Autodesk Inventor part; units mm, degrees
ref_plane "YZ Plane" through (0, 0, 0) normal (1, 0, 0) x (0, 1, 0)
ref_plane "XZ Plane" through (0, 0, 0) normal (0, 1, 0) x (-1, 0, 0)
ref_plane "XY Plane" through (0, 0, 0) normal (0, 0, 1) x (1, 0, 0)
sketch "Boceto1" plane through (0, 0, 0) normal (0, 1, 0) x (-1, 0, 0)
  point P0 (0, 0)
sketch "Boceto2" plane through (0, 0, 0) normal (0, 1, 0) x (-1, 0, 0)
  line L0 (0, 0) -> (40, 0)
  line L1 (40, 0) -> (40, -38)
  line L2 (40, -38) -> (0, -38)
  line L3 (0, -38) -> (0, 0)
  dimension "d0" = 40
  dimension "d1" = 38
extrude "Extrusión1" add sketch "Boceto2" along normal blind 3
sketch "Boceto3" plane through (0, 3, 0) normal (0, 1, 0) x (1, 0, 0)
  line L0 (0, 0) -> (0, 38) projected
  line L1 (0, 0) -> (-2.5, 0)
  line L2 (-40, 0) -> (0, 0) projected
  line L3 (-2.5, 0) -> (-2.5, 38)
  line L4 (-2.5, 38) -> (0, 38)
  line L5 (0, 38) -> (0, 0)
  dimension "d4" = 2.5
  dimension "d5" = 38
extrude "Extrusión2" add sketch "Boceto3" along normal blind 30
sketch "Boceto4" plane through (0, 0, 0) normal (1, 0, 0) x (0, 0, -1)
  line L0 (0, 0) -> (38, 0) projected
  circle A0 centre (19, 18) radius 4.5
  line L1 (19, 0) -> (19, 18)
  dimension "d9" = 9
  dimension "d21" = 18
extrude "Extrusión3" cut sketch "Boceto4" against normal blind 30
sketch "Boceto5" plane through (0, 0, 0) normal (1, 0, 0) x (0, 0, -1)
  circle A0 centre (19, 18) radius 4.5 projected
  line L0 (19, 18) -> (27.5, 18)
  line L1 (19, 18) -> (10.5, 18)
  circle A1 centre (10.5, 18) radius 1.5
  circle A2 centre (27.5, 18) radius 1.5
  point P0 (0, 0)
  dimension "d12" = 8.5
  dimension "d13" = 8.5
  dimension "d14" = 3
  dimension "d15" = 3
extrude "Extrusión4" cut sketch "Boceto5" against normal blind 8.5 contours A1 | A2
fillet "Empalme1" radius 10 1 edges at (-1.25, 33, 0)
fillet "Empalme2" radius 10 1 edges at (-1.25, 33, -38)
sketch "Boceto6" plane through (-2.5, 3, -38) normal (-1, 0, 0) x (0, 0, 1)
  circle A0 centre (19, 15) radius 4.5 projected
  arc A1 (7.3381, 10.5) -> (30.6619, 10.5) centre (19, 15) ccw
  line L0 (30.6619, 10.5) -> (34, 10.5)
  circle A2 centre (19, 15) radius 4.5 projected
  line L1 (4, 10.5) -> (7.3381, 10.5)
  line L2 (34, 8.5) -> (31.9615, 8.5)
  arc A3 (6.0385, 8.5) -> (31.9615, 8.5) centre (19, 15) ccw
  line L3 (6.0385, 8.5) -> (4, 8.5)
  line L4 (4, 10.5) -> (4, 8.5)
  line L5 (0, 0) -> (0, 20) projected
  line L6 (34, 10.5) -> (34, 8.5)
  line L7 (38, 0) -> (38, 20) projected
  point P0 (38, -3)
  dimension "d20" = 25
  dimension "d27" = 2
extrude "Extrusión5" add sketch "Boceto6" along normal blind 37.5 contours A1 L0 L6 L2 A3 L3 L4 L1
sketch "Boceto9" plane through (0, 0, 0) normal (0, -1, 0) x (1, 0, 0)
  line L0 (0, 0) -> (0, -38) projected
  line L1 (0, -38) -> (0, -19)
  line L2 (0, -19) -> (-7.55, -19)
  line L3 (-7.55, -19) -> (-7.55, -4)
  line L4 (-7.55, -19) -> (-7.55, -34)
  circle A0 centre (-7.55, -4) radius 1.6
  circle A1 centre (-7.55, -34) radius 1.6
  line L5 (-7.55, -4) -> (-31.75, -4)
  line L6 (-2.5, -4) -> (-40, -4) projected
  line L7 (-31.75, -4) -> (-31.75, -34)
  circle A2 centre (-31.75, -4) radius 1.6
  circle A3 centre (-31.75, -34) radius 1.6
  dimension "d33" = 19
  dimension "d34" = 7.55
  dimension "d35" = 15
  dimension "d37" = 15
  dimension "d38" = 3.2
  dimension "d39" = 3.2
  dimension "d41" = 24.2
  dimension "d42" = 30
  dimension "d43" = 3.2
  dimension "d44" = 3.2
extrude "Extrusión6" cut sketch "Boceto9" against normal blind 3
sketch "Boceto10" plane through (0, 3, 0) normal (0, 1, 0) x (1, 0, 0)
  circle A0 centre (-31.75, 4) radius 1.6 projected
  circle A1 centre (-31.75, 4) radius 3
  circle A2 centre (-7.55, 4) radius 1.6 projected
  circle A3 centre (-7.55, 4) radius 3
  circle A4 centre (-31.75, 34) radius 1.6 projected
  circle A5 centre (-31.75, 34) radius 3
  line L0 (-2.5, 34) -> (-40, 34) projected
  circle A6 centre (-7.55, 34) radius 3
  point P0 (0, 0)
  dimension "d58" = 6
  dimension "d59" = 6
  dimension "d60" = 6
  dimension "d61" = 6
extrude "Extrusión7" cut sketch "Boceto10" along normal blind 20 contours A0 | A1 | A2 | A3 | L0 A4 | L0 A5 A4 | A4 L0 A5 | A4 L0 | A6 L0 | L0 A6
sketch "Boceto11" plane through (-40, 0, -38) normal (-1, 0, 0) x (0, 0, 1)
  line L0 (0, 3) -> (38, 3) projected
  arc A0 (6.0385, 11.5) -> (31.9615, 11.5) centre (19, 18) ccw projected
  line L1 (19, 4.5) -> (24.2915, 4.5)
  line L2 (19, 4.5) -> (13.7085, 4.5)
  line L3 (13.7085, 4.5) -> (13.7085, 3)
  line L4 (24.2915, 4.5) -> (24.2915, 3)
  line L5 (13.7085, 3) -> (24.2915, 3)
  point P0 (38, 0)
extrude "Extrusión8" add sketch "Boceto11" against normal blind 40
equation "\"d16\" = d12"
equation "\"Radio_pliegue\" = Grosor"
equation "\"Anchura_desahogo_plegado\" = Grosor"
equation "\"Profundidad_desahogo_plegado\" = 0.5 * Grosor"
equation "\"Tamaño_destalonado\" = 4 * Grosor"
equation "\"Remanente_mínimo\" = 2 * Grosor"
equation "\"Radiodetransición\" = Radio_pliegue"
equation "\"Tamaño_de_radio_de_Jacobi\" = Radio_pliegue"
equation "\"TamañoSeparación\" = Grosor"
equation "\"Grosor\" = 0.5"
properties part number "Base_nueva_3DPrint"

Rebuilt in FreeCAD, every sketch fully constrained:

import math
import FreeCAD as App
import Part
import Sketcher
Q = App.Units.Quantity


def edges_at(feature, points):
    """Names of the edges that pass closest to the given points."""
    edges = feature.Shape.Edges
    near = lambda p: min(range(len(edges)), key=lambda i: edges[i].distToShape(Part.Vertex(*p))[0])
    return sorted({f"Edge{near(p) + 1}" for p in points})


def add_polygon(sketch, points):
    """Adds a closed chain of lines whose ends are joined by coincident constraints."""
    first, n = sketch.GeometryCount, len(points)
    for a, b in zip(points, points[1:] + points[:1]):
        sketch.addGeometry(Part.LineSegment(App.Vector(*a, 0), App.Vector(*b, 0)), False)
    for i in range(n):
        sketch.addConstraint(Sketcher.Constraint("Coincident", first + i, 2, first + (i + 1) % n, 1))

doc = App.newDocument("Part")
body = doc.addObject("PartDesign::Body", "Body")

# Sketch on XZ plane
sketch1 = doc.addObject("Sketcher::SketchObject", "Sketch")
body.addObject(sketch1)
sketch1.AttachmentSupport = (doc.XZ_Plane, [""])
sketch1.MapMode = "FlatFace"
add_polygon(sketch1, [(-40, 0), (0, 0), (0, -38), (-40, -38)])  # lines 0-3
sketch1.addConstraint([
    Sketcher.Constraint("Horizontal", 0),
    Sketcher.Constraint("Vertical", 1),
    Sketcher.Constraint("Horizontal", 2),
    Sketcher.Constraint("Vertical", 3),
    Sketcher.Constraint("Coincident", 0, 2, -1, 1),
    Sketcher.Constraint("DistanceX", 0, 1, 0, 2, Q("40 mm")),
    Sketcher.Constraint("DistanceY", 1, 2, 1, 1, Q("38 mm")),
])
pad1 = doc.addObject("PartDesign::Pad", "Pad")
body.addObject(pad1)
pad1.Profile = sketch1
pad1.Length = 3
pad1.Reversed = True

# Sketch on XZ plane
sketch2 = doc.addObject("Sketcher::SketchObject", "Sketch001")
body.addObject(sketch2)
sketch2.AttachmentSupport = (doc.XZ_Plane, [""])
sketch2.MapMode = "FlatFace"
sketch2.AttachmentOffset = App.Placement(App.Vector(0, 0, -3), App.Rotation())
add_polygon(sketch2, [(-2.5, 0), (0, 0), (0, -38), (-2.5, -38)])  # lines 0-3
sketch2.addConstraint([
    Sketcher.Constraint("Horizontal", 0),
    Sketcher.Constraint("Vertical", 1),
    Sketcher.Constraint("Horizontal", 2),
    Sketcher.Constraint("Vertical", 3),
    Sketcher.Constraint("Coincident", 0, 2, -1, 1),
    Sketcher.Constraint("DistanceY", 1, 2, 1, 1, Q("38 mm")),
    Sketcher.Constraint("DistanceX", 0, 1, 0, 2, Q("2.5 mm")),
])
pad2 = doc.addObject("PartDesign::Pad", "Pad001")
body.addObject(pad2)
pad2.Profile = sketch2
pad2.Length = 30
pad2.Reversed = True

# Sketch on YZ plane
sketch3 = doc.addObject("Sketcher::SketchObject", "Sketch002")
body.addObject(sketch3)
sketch3.AttachmentSupport = (doc.YZ_Plane, [""])
sketch3.MapMode = "FlatFace"
sketch3.addGeometry(Part.Circle(App.Vector(18, -19, 0), App.Vector(0, 0, 1), 4.5), False)
sketch3.addConstraint([
    Sketcher.Constraint("Diameter", 0, Q("9 mm")),
    Sketcher.Constraint("DistanceX", -1, 1, 0, 3, Q("18 mm")),
    Sketcher.Constraint("DistanceY", 0, 3, -1, 1, Q("19 mm")),
])
pocket1 = doc.addObject("PartDesign::Pocket", "Pocket")
body.addObject(pocket1)
pocket1.Profile = sketch3
pocket1.Length = 30

# Sketch on YZ plane
sketch4 = doc.addObject("Sketcher::SketchObject", "Sketch003")
body.addObject(sketch4)
sketch4.AttachmentSupport = (doc.YZ_Plane, [""])
sketch4.MapMode = "FlatFace"
sketch4.addGeometry([
    Part.Circle(App.Vector(18, -10.5, 0), App.Vector(0, 0, 1), 1.5),
    Part.Circle(App.Vector(18, -27.5, 0), App.Vector(0, 0, 1), 1.5),
], False)
sketch4.addConstraint([
    Sketcher.Constraint("Equal", 0, 1),
    Sketcher.Constraint("Vertical", 0, 3, 1, 3),
    Sketcher.Constraint("Diameter", 0, Q("3 mm")),
    Sketcher.Constraint("DistanceX", -1, 1, 0, 3, Q("18 mm")),
    Sketcher.Constraint("DistanceY", 1, 3, 0, 3, Q("17 mm")),
    Sketcher.Constraint("DistanceY", 0, 3, -1, 1, Q("10.5 mm")),
])
pocket2 = doc.addObject("PartDesign::Pocket", "Pocket001")
body.addObject(pocket2)
pocket2.Profile = sketch4
pocket2.Length = 8.5
doc.recompute()

fillet = doc.addObject("PartDesign::Fillet", "Fillet")
body.addObject(fillet)
fillet.Base = (pocket2, edges_at(pocket2, [(-1.25, 33, 0)]))
fillet.Radius = 10
doc.recompute()

fillet2 = doc.addObject("PartDesign::Fillet", "Fillet001")
body.addObject(fillet2)
fillet2.Base = (fillet, edges_at(fillet, [(-1.25, 33, -38)]))
fillet2.Radius = 10

# Sketch on YZ plane
sketch5 = doc.addObject("Sketcher::SketchObject", "Sketch004")
body.addObject(sketch5)
sketch5.AttachmentSupport = (doc.YZ_Plane, [""])
sketch5.MapMode = "FlatFace"
sketch5.AttachmentOffset = App.Placement(App.Vector(0, 0, -2.5), App.Rotation())
sketch5.addGeometry([
    Part.ArcOfCircle(Part.Circle(App.Vector(18, -19, 0), App.Vector(0, 0, 1), 12.499996), math.radians(111.100202), math.radians(248.899798)),  # 0
    Part.LineSegment(App.Vector(13.5, -30.6619, 0), App.Vector(13.5, -34, 0)),  # 1
    Part.LineSegment(App.Vector(13.5, -34, 0), App.Vector(11.5, -34, 0)),  # 2
    Part.LineSegment(App.Vector(11.5, -34, 0), App.Vector(11.5, -31.9615, 0)),  # 3
    Part.ArcOfCircle(Part.Circle(App.Vector(18, -19, 0), App.Vector(0, 0, 1), 14.500017), math.radians(116.633086), math.radians(243.366914)),  # 4
    Part.LineSegment(App.Vector(11.5, -6.0385, 0), App.Vector(11.5, -4, 0)),  # 5
    Part.LineSegment(App.Vector(11.5, -4, 0), App.Vector(13.5, -4, 0)),  # 6
    Part.LineSegment(App.Vector(13.5, -4, 0), App.Vector(13.5, -7.3381, 0)),  # 7
], False)
sketch5.addConstraint([
    Sketcher.Constraint("Coincident", 0, 2, 1, 1),
    Sketcher.Constraint("Coincident", 1, 2, 2, 1),
    Sketcher.Constraint("Coincident", 2, 2, 3, 1),
    Sketcher.Constraint("Coincident", 3, 2, 4, 2),
    Sketcher.Constraint("Coincident", 4, 1, 5, 1),
    Sketcher.Constraint("Coincident", 5, 2, 6, 1),
    Sketcher.Constraint("Coincident", 6, 2, 7, 1),
    Sketcher.Constraint("Coincident", 7, 2, 0, 1),
    Sketcher.Constraint("Vertical", 1),
    Sketcher.Constraint("Horizontal", 2),
    Sketcher.Constraint("Vertical", 3),
    Sketcher.Constraint("Vertical", 5),
    Sketcher.Constraint("Horizontal", 6),
    Sketcher.Constraint("Vertical", 7),
    Sketcher.Constraint("Coincident", 4, 3, 0, 3),
    Sketcher.Constraint("Vertical", 3, 2, 4, 1),
    Sketcher.Constraint("Vertical", 1, 2, 6, 2),
    Sketcher.Constraint("Equal", 3, 5),
    Sketcher.Constraint("Radius", 0, Q("12.5 mm")),
    Sketcher.Constraint("DistanceX", 2, 2, 2, 1, Q("2 mm")),
    Sketcher.Constraint("Radius", 4, Q("14.5 mm")),
    Sketcher.Constraint("DistanceX", -1, 1, 0, 3, Q("18 mm")),
    Sketcher.Constraint("DistanceY", 0, 3, -1, 1, Q("19 mm")),
    Sketcher.Constraint("DistanceY", 1, 2, -1, 1, Q("34 mm")),
    Sketcher.Constraint("DistanceX", -1, 1, 0, 2, Q("13.5 mm")),
])
pad3 = doc.addObject("PartDesign::Pad", "Pad002")
body.addObject(pad3)
pad3.Profile = sketch5
pad3.Length = 37.5
pad3.Reversed = True

# Sketch on XZ plane
sketch6 = doc.addObject("Sketcher::SketchObject", "Sketch005")
body.addObject(sketch6)
sketch6.AttachmentSupport = (doc.XZ_Plane, [""])
sketch6.MapMode = "FlatFace"
sketch6.addGeometry([
    Part.Circle(App.Vector(-31.75, -34, 0), App.Vector(0, 0, 1), 1.6),
    Part.Circle(App.Vector(-31.75, -4, 0), App.Vector(0, 0, 1), 1.6),
    Part.Circle(App.Vector(-7.55, -4, 0), App.Vector(0, 0, 1), 1.6),
    Part.Circle(App.Vector(-7.55, -34, 0), App.Vector(0, 0, 1), 1.6),
], False)
sketch6.addConstraint([
    Sketcher.Constraint("Equal", 0, 1),
    Sketcher.Constraint("Equal", 1, 2),
    Sketcher.Constraint("Equal", 2, 3),
    Sketcher.Constraint("Horizontal", 1, 3, 2, 3),
    Sketcher.Constraint("Horizontal", 0, 3, 3, 3),
    Sketcher.Constraint("Vertical", 0, 3, 1, 3),
    Sketcher.Constraint("Vertical", 2, 3, 3, 3),
    Sketcher.Constraint("Diameter", 0, Q("3.2 mm")),
    Sketcher.Constraint("DistanceY", 0, 3, 1, 3, Q("30 mm")),
    Sketcher.Constraint("DistanceX", 1, 3, 2, 3, Q("24.2 mm")),
    Sketcher.Constraint("DistanceX", 2, 3, -1, 1, Q("7.55 mm")),
    Sketcher.Constraint("DistanceY", 0, 3, -1, 1, Q("34 mm")),
])
pocket3 = doc.addObject("PartDesign::Pocket", "Pocket002")
body.addObject(pocket3)
pocket3.Profile = sketch6
pocket3.Length = 3

# Sketch on XZ plane
sketch7 = doc.addObject("Sketcher::SketchObject", "Sketch006")
body.addObject(sketch7)
sketch7.AttachmentSupport = (doc.XZ_Plane, [""])
sketch7.MapMode = "FlatFace"
sketch7.AttachmentOffset = App.Placement(App.Vector(0, 0, -3), App.Rotation())
sketch7.addGeometry([
    Part.Circle(App.Vector(-31.75, -4, 0), App.Vector(0, 0, 1), 3),
    Part.Circle(App.Vector(-7.55, -4, 0), App.Vector(0, 0, 1), 3),
    Part.Circle(App.Vector(-31.75, -34, 0), App.Vector(0, 0, 1), 3),
    Part.Circle(App.Vector(-7.55, -34, 0), App.Vector(0, 0, 1), 3),
], False)
sketch7.addConstraint([
    Sketcher.Constraint("Equal", 0, 1),
    Sketcher.Constraint("Equal", 1, 2),
    Sketcher.Constraint("Equal", 2, 3),
    Sketcher.Constraint("Horizontal", 0, 3, 1, 3),
    Sketcher.Constraint("Horizontal", 2, 3, 3, 3),
    Sketcher.Constraint("Vertical", 0, 3, 2, 3),
    Sketcher.Constraint("Vertical", 1, 3, 3, 3),
    Sketcher.Constraint("Diameter", 0, Q("6 mm")),
    Sketcher.Constraint("DistanceY", 0, 3, -1, 1, Q("4 mm")),
    Sketcher.Constraint("DistanceY", 2, 3, -1, 1, Q("34 mm")),
    Sketcher.Constraint("DistanceX", 0, 3, 1, 3, Q("24.2 mm")),
    Sketcher.Constraint("DistanceX", 0, 3, -1, 1, Q("31.75 mm")),
])
pocket4 = doc.addObject("PartDesign::Pocket", "Pocket003")
body.addObject(pocket4)
pocket4.Profile = sketch7
pocket4.Length = 20

# Sketch on YZ plane
sketch8 = doc.addObject("Sketcher::SketchObject", "Sketch007")
body.addObject(sketch8)
sketch8.AttachmentSupport = (doc.YZ_Plane, [""])
sketch8.MapMode = "FlatFace"
sketch8.AttachmentOffset = App.Placement(App.Vector(0, 0, -40), App.Rotation())
add_polygon(sketch8, [(4.5, -24.2915), (3, -24.2915), (3, -13.7085), (4.5, -13.7085)])  # lines 0-3
sketch8.addConstraint([
    Sketcher.Constraint("Horizontal", 0),
    Sketcher.Constraint("Vertical", 1),
    Sketcher.Constraint("Horizontal", 2),
    Sketcher.Constraint("Vertical", 3),
    Sketcher.Constraint("DistanceX", 0, 2, 0, 1, Q("1.5 mm")),
    Sketcher.Constraint("DistanceX", -1, 1, 0, 2, Q("3 mm")),
    Sketcher.Constraint("DistanceY", 1, 1, 1, 2, Q("10.583 mm")),
    Sketcher.Constraint("DistanceY", 0, 2, -1, 1, Q("24.2915 mm")),
])
pad4 = doc.addObject("PartDesign::Pad", "Pad003")
body.addObject(pad4)
pad4.Profile = sketch8
pad4.Length = 40

doc.recompute()
